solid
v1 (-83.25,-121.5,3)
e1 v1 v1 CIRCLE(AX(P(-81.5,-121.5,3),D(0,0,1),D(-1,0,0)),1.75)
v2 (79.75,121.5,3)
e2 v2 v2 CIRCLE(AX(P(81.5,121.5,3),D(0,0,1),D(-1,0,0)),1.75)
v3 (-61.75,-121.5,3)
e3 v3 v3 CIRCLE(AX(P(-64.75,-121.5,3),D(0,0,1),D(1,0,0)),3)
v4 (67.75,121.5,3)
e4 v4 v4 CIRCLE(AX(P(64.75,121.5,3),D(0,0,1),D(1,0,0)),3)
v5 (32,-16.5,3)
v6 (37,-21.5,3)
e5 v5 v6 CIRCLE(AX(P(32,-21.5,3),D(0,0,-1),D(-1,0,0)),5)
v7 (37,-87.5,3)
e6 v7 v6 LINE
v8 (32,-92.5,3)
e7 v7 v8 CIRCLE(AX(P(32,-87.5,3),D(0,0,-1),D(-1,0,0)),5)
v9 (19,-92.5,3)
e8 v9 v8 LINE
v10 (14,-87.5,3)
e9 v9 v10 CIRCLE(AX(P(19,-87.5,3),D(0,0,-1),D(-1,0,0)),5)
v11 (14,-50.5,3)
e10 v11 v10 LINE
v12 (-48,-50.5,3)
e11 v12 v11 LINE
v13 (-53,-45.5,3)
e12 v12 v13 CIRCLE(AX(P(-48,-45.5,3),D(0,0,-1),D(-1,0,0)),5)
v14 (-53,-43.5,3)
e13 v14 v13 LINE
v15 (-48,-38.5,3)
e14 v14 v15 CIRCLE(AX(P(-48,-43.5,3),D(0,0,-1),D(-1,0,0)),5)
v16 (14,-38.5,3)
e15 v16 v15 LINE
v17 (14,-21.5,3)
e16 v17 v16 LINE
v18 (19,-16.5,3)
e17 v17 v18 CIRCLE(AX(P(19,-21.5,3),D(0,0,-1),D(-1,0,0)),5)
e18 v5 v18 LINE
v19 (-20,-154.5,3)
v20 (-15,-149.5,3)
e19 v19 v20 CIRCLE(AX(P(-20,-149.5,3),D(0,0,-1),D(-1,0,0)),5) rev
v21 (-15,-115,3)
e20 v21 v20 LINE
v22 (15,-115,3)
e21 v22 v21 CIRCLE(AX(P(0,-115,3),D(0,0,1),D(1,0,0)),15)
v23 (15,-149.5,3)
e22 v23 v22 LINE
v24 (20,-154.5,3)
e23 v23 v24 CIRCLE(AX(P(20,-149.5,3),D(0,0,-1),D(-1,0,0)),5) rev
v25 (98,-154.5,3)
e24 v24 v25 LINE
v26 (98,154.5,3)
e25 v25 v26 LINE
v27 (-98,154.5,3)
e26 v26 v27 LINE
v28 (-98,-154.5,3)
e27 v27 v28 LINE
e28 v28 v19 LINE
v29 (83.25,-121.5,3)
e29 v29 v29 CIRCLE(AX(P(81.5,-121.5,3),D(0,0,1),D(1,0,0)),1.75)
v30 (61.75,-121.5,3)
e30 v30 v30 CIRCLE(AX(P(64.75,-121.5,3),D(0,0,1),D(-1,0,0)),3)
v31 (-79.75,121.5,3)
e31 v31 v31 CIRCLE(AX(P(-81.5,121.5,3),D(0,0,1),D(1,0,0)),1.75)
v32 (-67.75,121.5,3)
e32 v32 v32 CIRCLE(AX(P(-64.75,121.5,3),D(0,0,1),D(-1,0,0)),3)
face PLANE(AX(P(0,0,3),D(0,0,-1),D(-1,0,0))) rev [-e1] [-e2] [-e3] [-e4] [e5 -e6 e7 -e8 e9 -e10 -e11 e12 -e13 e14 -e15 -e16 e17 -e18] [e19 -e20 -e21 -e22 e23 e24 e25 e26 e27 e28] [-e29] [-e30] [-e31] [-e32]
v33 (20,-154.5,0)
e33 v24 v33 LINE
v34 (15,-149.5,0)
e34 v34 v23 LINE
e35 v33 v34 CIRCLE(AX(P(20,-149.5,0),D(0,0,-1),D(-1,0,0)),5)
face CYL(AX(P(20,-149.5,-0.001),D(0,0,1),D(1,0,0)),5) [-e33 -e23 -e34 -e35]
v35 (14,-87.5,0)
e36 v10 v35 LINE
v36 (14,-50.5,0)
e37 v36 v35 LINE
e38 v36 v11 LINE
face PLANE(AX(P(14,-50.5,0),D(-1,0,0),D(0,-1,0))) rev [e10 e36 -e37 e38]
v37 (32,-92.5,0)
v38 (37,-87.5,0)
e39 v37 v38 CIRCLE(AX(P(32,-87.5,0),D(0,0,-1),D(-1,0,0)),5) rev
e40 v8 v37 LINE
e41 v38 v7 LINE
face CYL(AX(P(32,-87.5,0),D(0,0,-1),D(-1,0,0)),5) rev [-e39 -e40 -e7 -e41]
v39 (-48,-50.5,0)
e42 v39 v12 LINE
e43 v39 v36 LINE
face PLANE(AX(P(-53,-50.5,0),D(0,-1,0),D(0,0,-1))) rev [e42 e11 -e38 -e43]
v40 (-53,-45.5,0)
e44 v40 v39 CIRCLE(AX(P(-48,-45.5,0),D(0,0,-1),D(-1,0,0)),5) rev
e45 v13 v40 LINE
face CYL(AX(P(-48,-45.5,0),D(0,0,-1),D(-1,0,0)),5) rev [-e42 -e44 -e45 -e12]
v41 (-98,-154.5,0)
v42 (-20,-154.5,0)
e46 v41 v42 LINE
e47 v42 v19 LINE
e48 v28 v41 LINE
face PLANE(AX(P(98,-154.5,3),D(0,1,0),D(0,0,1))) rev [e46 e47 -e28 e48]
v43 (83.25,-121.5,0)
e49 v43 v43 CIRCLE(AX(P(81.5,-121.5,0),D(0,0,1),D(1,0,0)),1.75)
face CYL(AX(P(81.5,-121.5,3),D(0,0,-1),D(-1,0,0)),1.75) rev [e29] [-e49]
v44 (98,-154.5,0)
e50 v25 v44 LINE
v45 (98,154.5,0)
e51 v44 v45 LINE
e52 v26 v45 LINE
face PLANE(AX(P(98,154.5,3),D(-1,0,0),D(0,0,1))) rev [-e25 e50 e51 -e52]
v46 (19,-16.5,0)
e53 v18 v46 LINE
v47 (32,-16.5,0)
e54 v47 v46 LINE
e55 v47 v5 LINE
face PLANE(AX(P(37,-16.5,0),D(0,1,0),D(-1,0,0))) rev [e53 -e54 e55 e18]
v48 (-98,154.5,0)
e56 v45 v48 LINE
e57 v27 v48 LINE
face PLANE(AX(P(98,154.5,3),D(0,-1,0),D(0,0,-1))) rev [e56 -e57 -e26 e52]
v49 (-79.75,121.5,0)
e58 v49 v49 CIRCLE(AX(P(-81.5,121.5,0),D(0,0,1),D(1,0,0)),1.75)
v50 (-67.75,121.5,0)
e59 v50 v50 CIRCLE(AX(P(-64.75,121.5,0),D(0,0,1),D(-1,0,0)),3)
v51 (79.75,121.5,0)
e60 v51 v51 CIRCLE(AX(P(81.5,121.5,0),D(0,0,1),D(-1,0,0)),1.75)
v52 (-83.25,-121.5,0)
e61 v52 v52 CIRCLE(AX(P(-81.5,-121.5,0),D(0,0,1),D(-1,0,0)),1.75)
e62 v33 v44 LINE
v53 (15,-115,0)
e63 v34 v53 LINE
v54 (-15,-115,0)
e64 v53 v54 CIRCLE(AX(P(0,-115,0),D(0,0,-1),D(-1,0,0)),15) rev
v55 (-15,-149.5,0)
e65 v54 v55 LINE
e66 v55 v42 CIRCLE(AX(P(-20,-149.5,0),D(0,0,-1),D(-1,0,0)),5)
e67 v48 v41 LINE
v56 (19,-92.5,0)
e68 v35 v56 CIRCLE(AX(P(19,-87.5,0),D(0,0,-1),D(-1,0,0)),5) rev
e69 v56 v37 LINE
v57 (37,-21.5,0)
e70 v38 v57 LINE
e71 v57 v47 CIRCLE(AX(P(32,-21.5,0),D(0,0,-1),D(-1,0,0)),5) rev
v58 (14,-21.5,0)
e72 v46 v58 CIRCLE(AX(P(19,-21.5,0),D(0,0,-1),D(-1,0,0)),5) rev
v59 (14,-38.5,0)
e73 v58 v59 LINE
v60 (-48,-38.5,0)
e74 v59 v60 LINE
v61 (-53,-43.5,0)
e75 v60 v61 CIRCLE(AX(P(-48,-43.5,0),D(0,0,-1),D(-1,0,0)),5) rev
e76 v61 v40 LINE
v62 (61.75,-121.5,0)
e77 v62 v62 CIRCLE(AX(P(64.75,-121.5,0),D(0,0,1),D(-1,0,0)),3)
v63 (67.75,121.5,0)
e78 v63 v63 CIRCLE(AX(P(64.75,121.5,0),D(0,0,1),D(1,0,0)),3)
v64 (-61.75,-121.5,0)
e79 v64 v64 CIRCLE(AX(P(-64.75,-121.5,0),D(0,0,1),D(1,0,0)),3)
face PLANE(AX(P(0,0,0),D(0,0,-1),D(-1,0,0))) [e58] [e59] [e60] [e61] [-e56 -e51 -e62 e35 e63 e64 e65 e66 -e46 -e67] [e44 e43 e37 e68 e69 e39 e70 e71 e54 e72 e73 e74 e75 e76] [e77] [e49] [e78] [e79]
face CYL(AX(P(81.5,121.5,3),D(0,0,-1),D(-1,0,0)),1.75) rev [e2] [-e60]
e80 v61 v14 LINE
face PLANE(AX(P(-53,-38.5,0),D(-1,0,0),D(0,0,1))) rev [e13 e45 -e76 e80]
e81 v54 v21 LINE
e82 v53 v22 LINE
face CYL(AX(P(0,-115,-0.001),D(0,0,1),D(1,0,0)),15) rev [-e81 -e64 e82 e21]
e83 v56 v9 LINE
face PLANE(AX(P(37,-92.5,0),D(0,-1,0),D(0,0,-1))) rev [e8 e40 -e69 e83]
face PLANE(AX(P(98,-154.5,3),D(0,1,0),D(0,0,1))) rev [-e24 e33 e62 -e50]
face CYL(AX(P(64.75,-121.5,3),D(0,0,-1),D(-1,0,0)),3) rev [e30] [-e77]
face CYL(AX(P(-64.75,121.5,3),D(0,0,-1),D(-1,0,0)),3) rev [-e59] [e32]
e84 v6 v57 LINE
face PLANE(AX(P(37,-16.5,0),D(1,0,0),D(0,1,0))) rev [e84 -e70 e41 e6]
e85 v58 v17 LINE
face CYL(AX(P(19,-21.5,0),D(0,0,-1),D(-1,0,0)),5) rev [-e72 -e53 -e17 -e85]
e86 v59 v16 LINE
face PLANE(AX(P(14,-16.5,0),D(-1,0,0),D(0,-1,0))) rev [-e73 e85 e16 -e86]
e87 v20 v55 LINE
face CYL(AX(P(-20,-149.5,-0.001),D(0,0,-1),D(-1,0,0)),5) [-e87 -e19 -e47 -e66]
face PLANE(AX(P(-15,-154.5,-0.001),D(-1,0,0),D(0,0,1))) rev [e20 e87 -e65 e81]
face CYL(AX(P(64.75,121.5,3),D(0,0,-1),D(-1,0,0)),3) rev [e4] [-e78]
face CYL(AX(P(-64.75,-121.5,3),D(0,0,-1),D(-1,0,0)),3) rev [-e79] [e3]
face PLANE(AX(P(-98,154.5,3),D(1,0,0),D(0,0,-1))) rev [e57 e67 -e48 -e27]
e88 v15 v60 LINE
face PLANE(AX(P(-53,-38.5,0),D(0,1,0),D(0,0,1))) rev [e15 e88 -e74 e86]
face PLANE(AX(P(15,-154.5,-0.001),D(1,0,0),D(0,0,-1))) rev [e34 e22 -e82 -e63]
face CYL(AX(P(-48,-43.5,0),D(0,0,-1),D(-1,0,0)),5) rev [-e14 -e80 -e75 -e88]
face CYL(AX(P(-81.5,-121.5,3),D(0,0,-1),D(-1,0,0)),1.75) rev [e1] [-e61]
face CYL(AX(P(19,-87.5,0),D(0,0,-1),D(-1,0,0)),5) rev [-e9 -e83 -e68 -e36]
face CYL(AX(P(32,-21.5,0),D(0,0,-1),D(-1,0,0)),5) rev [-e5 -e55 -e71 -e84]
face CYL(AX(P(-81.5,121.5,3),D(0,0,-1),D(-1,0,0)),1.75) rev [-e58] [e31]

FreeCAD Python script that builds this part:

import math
import FreeCAD as App
import Part
import Sketcher
Q = App.Units.Quantity


def edges_at(feature, points):
    """Names of the edges that pass closest to the given points."""
    edges = feature.Shape.Edges
    near = lambda p: min(range(len(edges)), key=lambda i: edges[i].distToShape(Part.Vertex(*p))[0])
    return sorted({f"Edge{near(p) + 1}" for p in points})

doc = App.newDocument("Part")
body = doc.addObject("PartDesign::Body", "Body")

# Sketch on XY plane
sketch1 = body.newObject("Sketcher::SketchObject", "Sketch")
sketch1.AttachmentSupport = (doc.getObject("XY_Plane"), [""])
sketch1.MapMode = "FlatFace"
sketch1.addGeometry([
    Part.LineSegment(App.Vector(-98, 154.5, 0), App.Vector(-98, -154.5, 0)),  # 0
    Part.LineSegment(App.Vector(-98, -154.5, 0), App.Vector(98, -154.5, 0)),  # 1
    Part.LineSegment(App.Vector(98, -154.5, 0), App.Vector(98, 154.5, 0)),  # 2
    Part.LineSegment(App.Vector(98, 154.5, 0), App.Vector(-98, 154.5, 0)),  # 3
    Part.Circle(App.Vector(-81.5, -121.5, 0), App.Vector(0, 0, 1), 1.8),  # 4
    Part.Circle(App.Vector(-64.8, -121.5, 0), App.Vector(0, 0, 1), 3),  # 5
    Part.Circle(App.Vector(64.8, -121.5, 0), App.Vector(0, 0, 1), 3),  # 6
    Part.Circle(App.Vector(81.5, -121.5, 0), App.Vector(0, 0, 1), 1.8),  # 7
    Part.Circle(App.Vector(-81.5, 121.5, 0), App.Vector(0, 0, 1), 1.8),  # 8
    Part.Circle(App.Vector(-64.8, 121.5, 0), App.Vector(0, 0, 1), 3),  # 9
    Part.Circle(App.Vector(64.8, 121.5, 0), App.Vector(0, 0, 1), 3),  # 10
    Part.Circle(App.Vector(81.5, 121.5, 0), App.Vector(0, 0, 1), 1.8),  # 11
], False)
sketch1.addConstraint([
    Sketcher.Constraint("Coincident", 0, 2, 1, 1),
    Sketcher.Constraint("Coincident", 1, 2, 2, 1),
    Sketcher.Constraint("Coincident", 2, 2, 3, 1),
    Sketcher.Constraint("Coincident", 3, 2, 0, 1),
    Sketcher.Constraint("Vertical", 0),
    Sketcher.Constraint("Horizontal", 1),
    Sketcher.Constraint("Vertical", 2),
    Sketcher.Constraint("Horizontal", 3),
    Sketcher.Constraint("Equal", 5, 6),
    Sketcher.Constraint("Equal", 4, 7),
    Sketcher.Constraint("Equal", 7, 8),
    Sketcher.Constraint("Equal", 6, 9),
    Sketcher.Constraint("Equal", 9, 10),
    Sketcher.Constraint("Equal", 8, 11),
    Sketcher.Constraint("Symmetric", 7, 3, 8, 3, -1, 1),
    Sketcher.Constraint("Symmetric", 6, 3, 9, 3, -1, 1),
    Sketcher.Constraint("Symmetric", 5, 3, 10, 3, -1, 1),
    Sketcher.Constraint("Symmetric", 4, 3, 11, 3, -1, 1),
    Sketcher.Constraint("Symmetric", 0, 2, 2, 2, -1, 1),
    Sketcher.Constraint("Symmetric", 5, 3, 6, 3, -2),
    Sketcher.Constraint("Symmetric", 4, 3, 7, 3, -2),
    Sketcher.Constraint("Horizontal", 4, 3, 5, 3),
    Sketcher.Constraint("Diameter", 5, Q("6 mm")),
    Sketcher.Constraint("Diameter", 4, Q("3.5 mm")),
    Sketcher.Constraint("DistanceX", 1, 1, 1, 2, Q("196 mm")),
    Sketcher.Constraint("DistanceY", 0, 2, 0, 1, Q("309 mm")),
    Sketcher.Constraint("DistanceX", 4, 3, 7, 3, Q("163 mm")),
    Sketcher.Constraint("DistanceY", 4, 3, 8, 3, Q("243 mm")),
    Sketcher.Constraint("DistanceX", 5, 3, 6, 3, Q("129.5 mm")),
])
pad1 = body.newObject("PartDesign::Pad", "Pad")
pad1.Profile = sketch1
pad1.Length = 3

# Sketch on XY plane
sketch2 = body.newObject("Sketcher::SketchObject", "Sketch001")
sketch2.AttachmentSupport = (doc.getObject("XY_Plane"), [""])
sketch2.MapMode = "FlatFace"
sketch2.AttachmentOffset = App.Placement(App.Vector(0, 0, 3), App.Rotation())
sketch2.addGeometry([
    Part.LineSegment(App.Vector(-15, -115, 0), App.Vector(-15, -154, 0)),
    Part.ArcOfCircle(Part.Circle(App.Vector(0, -154, 0), App.Vector(0, 0, 1), 15), math.radians(180), math.radians(360)),
    Part.LineSegment(App.Vector(15, -154, 0), App.Vector(15, -115, 0)),
    Part.ArcOfCircle(Part.Circle(App.Vector(0, -115, 0), App.Vector(0, 0, 1), 15), math.radians(0), math.radians(180)),
], False)
sketch2.addConstraint([
    Sketcher.Constraint("Tangent", 0, 2, 1, 1),
    Sketcher.Constraint("Tangent", 1, 2, 2, 1),
    Sketcher.Constraint("Tangent", 2, 2, 3, 1),
    Sketcher.Constraint("Tangent", 3, 2, 0, 1),
    Sketcher.Constraint("Vertical", 0),
    Sketcher.Constraint("Vertical", 2),
    Sketcher.Constraint("PointOnObject", 1, 3, -2),
    Sketcher.Constraint("Radius", 1, Q("15 mm")),
    Sketcher.Constraint("DistanceY", 0, 2, 0, 1, Q("39.5 mm")),
    Sketcher.Constraint("DistanceY", 3, 3, -1, 1, Q("115 mm")),
])
pocket1 = body.newObject("PartDesign::Pocket", "Pocket")
pocket1.Profile = sketch2
pocket1.Type = "UpToFirst"
doc.recompute()

fillet = body.newObject("PartDesign::Fillet", "Fillet")
fillet.Base = (pocket1, edges_at(pocket1, [(-15, -154.5, 1.5), (15, -154.5, 1.5)]))
fillet.Radius = 5

# Sketch on XY plane
sketch3 = body.newObject("Sketcher::SketchObject", "Sketch002")
sketch3.AttachmentSupport = (doc.getObject("XY_Plane"), [""])
sketch3.MapMode = "FlatFace"
sketch3.AttachmentOffset = App.Placement(App.Vector(0, 0, 3), App.Rotation())
sketch3.addGeometry([
    Part.LineSegment(App.Vector(14, -38, 0), App.Vector(-53, -38, 0)),  # 0
    Part.LineSegment(App.Vector(-53, -38, 0), App.Vector(-53, -50, 0)),  # 1
    Part.LineSegment(App.Vector(-53, -50, 0), App.Vector(14, -50, 0)),  # 2
    Part.LineSegment(App.Vector(14, -50, 0), App.Vector(14, -92, 0)),  # 3
    Part.LineSegment(App.Vector(14, -92, 0), App.Vector(37, -92, 0)),  # 4
    Part.LineSegment(App.Vector(37, -92, 0), App.Vector(37, -16, 0)),  # 5
    Part.LineSegment(App.Vector(37, -16, 0), App.Vector(14, -16, 0)),  # 6
    Part.LineSegment(App.Vector(14, -16, 0), App.Vector(14, -38, 0)),  # 7
], False)
sketch3.addConstraint([
    Sketcher.Constraint("Coincident", 0, 2, 1, 1),
    Sketcher.Constraint("Coincident", 1, 2, 2, 1),
    Sketcher.Constraint("Coincident", 2, 2, 3, 1),
    Sketcher.Constraint("Coincident", 3, 2, 4, 1),
    Sketcher.Constraint("Coincident", 4, 2, 5, 1),
    Sketcher.Constraint("Coincident", 5, 2, 6, 1),
    Sketcher.Constraint("Coincident", 6, 2, 7, 1),
    Sketcher.Constraint("Coincident", 7, 2, 0, 1),
    Sketcher.Constraint("Horizontal", 0),
    Sketcher.Constraint("Vertical", 1),
    Sketcher.Constraint("Horizontal", 2),
    Sketcher.Constraint("Vertical", 3),
    Sketcher.Constraint("Horizontal", 4),
    Sketcher.Constraint("Vertical", 5),
    Sketcher.Constraint("Horizontal", 6),
    Sketcher.Constraint("Vertical", 7),
    Sketcher.Constraint("Vertical", 3, 2, 6, 2),
    Sketcher.Constraint("DistanceX", 0, 2, 0, 1, Q("67 mm")),
    Sketcher.Constraint("DistanceX", 4, 1, 4, 2, Q("23 mm")),
    Sketcher.Constraint("DistanceY", 1, 2, 1, 1, Q("12 mm")),
    Sketcher.Constraint("DistanceY", 3, 2, 3, 1, Q("42 mm")),
    Sketcher.Constraint("DistanceY", 5, 1, 5, 2, Q("76 mm")),
    Sketcher.Constraint("DistanceX", 0, 2, -1, 1, Q("53 mm")),
    Sketcher.Constraint("DistanceY", 0, 2, -1, 1, Q("38.5 mm")),
])
pocket2 = body.newObject("PartDesign::Pocket", "Pocket001")
pocket2.Profile = sketch3
pocket2.Type = "ThroughAll"
doc.recompute()

fillet2 = body.newObject("PartDesign::Fillet", "Fillet001")
fillet2.Base = (pocket2, edges_at(pocket2, [
    (-53, -50.5, 1.5),
    (-53, -38.5, 1.5),
    (14, -16.5, 1.5),
    (37, -16.5, 1.5),
    (37, -92.5, 1.5),
    (14, -92.5, 1.5),
]))
fillet2.Radius = 5

doc.recompute()
